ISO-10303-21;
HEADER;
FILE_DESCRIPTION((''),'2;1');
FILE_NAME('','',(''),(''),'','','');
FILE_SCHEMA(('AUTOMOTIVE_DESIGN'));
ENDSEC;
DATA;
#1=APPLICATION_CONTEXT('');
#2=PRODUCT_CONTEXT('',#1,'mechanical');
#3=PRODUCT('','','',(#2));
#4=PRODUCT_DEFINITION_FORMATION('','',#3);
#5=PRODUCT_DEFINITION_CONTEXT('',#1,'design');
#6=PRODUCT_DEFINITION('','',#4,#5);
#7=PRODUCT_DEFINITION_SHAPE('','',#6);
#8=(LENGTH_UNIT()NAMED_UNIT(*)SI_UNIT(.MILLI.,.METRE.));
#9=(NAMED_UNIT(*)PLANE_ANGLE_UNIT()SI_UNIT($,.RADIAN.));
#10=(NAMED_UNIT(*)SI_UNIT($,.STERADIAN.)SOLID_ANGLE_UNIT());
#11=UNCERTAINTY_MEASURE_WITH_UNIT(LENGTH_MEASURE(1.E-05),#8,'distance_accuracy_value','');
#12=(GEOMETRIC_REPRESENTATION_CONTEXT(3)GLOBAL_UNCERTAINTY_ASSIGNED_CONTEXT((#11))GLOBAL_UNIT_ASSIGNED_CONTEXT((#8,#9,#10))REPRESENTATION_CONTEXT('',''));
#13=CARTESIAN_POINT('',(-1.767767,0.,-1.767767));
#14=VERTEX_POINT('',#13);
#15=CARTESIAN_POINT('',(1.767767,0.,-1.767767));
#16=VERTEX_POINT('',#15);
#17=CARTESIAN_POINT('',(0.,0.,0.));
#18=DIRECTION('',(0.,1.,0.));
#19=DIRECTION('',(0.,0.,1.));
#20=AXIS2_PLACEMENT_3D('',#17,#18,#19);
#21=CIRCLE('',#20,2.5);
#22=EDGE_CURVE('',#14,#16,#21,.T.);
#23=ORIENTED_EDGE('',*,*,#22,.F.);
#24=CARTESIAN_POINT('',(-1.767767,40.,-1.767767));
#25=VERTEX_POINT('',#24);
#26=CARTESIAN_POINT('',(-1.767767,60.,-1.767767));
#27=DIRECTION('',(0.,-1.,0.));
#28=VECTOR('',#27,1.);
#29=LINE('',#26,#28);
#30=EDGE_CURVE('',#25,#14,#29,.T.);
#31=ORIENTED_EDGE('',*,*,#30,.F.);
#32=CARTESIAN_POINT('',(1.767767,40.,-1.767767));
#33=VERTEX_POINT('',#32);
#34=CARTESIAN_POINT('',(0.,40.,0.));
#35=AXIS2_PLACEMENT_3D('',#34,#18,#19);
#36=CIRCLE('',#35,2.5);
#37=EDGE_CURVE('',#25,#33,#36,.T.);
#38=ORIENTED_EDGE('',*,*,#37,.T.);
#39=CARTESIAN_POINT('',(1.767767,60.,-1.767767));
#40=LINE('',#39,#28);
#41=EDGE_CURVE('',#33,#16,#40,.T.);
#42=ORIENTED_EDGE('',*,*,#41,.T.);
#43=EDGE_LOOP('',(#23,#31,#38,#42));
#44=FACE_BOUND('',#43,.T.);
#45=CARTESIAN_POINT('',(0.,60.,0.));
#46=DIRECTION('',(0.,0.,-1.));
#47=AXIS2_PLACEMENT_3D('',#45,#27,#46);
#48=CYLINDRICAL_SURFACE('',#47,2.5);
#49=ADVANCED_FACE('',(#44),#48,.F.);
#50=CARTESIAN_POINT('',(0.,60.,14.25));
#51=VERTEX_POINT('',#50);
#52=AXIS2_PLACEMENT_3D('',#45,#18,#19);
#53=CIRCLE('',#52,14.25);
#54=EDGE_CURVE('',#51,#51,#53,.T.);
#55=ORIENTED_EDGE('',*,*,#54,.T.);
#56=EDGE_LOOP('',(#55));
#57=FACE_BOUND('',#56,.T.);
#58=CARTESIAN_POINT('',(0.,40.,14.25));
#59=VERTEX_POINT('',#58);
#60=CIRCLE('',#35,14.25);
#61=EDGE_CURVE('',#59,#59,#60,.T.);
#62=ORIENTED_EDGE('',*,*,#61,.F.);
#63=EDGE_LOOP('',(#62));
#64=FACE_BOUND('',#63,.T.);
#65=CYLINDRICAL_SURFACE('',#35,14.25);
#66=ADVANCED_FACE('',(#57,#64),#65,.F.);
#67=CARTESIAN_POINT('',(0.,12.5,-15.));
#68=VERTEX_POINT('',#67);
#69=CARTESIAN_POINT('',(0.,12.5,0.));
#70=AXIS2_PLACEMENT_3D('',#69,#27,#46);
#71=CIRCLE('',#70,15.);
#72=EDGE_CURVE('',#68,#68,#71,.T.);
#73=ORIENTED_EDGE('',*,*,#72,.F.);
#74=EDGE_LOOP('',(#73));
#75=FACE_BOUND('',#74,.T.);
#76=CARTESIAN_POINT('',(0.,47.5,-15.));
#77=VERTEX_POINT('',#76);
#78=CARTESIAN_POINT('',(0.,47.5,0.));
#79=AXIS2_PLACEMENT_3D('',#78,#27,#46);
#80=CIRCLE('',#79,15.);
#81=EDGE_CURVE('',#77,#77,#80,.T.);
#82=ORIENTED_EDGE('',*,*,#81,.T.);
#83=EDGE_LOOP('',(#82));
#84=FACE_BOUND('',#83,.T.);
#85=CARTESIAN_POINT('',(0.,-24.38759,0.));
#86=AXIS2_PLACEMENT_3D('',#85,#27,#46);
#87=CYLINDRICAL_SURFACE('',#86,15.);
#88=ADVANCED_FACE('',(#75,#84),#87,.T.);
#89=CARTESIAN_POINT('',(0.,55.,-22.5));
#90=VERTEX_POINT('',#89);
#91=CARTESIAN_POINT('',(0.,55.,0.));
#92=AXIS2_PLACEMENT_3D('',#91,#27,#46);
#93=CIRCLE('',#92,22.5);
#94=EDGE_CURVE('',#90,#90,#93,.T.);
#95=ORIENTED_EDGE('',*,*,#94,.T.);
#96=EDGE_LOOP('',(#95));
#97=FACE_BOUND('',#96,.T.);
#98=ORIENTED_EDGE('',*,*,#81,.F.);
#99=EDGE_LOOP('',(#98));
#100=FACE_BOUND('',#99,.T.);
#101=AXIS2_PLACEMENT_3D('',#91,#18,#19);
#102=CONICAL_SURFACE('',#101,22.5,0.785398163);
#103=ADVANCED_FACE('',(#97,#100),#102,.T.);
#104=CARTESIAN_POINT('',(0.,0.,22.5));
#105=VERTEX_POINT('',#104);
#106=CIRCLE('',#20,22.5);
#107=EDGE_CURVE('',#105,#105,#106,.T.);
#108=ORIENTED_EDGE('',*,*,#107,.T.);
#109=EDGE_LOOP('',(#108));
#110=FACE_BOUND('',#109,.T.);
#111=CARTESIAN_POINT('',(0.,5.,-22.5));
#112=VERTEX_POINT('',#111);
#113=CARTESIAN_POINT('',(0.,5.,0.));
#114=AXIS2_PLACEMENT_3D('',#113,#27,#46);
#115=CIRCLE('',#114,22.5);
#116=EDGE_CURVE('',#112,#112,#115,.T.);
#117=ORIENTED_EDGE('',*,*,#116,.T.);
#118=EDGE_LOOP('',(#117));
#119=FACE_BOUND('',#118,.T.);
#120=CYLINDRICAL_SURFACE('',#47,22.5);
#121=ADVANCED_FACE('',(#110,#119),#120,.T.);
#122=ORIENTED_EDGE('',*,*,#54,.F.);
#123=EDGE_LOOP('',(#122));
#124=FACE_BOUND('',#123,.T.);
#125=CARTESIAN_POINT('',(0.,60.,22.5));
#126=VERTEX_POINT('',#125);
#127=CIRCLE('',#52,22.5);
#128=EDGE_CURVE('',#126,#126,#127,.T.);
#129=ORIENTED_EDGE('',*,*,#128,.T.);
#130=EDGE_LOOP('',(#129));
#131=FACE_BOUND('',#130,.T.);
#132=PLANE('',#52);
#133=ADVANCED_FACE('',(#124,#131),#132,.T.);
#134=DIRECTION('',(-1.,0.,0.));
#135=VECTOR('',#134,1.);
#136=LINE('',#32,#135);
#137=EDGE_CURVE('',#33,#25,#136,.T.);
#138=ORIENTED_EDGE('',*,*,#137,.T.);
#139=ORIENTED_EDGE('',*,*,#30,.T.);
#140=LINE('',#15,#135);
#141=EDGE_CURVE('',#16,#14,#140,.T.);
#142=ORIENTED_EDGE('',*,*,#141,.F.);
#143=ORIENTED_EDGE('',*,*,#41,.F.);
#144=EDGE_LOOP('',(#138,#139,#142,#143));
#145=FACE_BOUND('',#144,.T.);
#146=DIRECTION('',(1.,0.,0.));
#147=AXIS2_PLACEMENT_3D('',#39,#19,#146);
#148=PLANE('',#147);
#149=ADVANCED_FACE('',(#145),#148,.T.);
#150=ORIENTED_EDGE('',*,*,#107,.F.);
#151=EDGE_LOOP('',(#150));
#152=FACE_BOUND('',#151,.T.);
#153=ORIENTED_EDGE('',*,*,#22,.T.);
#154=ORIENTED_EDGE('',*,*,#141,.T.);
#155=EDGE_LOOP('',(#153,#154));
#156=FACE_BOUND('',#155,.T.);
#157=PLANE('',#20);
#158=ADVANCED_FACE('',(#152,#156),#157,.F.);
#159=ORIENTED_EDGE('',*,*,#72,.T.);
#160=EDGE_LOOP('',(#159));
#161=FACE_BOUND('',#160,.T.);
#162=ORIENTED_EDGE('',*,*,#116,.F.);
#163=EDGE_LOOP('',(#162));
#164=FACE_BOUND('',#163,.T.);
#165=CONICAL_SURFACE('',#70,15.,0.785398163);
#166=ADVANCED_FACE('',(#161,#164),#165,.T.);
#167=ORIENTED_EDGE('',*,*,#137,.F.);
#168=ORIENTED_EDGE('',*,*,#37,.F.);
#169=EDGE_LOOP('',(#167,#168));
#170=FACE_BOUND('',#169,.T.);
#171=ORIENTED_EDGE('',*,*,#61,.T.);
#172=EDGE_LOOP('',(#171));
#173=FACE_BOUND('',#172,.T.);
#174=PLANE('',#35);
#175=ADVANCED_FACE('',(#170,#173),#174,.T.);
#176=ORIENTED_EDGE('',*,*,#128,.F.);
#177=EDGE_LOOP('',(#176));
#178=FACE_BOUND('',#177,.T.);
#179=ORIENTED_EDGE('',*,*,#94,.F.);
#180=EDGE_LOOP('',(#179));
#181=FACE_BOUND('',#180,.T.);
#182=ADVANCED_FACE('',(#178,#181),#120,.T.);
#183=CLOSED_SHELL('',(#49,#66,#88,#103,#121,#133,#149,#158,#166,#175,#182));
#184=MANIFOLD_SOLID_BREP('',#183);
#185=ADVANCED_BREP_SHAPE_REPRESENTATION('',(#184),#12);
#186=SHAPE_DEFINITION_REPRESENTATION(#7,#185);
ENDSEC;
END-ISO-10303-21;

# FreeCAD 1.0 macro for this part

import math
import FreeCAD as App
import Part
import Sketcher


def add_polygon(sketch, points):
    """Adds a closed chain of lines whose ends are joined by coincident constraints."""
    first, n = sketch.GeometryCount, len(points)
    for a, b in zip(points, points[1:] + points[:1]):
        sketch.addGeometry(Part.LineSegment(App.Vector(*a, 0), App.Vector(*b, 0)), False)
    for i in range(n):
        sketch.addConstraint(Sketcher.Constraint("Coincident", first + i, 2, first + (i + 1) % n, 1))

doc = App.newDocument("Part")
body = doc.addObject("PartDesign::Body", "Body")

sketch1 = body.newObject("Sketcher::SketchObject", "Sketch")
sketch1.AttachmentSupport = (doc.getObject("XZ_Plane"), [""])
sketch1.MapMode = "FlatFace"
sketch1.addGeometry([
    Part.Circle(App.Vector(0, 0, 0), App.Vector(0, 0, 1), 22.5),
    Part.LineSegment(App.Vector(-1.767767, -1.767767, 0), App.Vector(1.767767, -1.767767, 0)),
    Part.ArcOfCircle(Part.Circle(App.Vector(0, 0, 0), App.Vector(0, 0, 1), 2.5), math.radians(-45), math.radians(225)),
], False)
sketch1.addConstraint([
    Sketcher.Constraint("Coincident", 1, 1, 2, 2),
    Sketcher.Constraint("Coincident", 2, 1, 1, 2),
    Sketcher.Constraint("Horizontal", 1),
    Sketcher.Constraint("Coincident", 0, 3, -1, 1),
    Sketcher.Constraint("Coincident", 2, 3, -1, 1),
    Sketcher.Constraint("Diameter", 0, 45.0),
    Sketcher.Constraint("Radius", 2, 2.5),
    Sketcher.Constraint("DistanceX", 1, 1, 1, 2, 3.535534),
])
pad1 = body.newObject("PartDesign::Pad", "Pad")
pad1.Profile = sketch1
pad1.Length = 60
pad1.Reversed = True

sketch2 = body.newObject("Sketcher::SketchObject", "Sketch001")
sketch2.AttachmentSupport = (doc.getObject("XZ_Plane"), [""])
sketch2.MapMode = "FlatFace"
sketch2.AttachmentOffset = App.Placement(App.Vector(0, 0, -60), App.Rotation())
sketch2.addGeometry(Part.Circle(App.Vector(0, 0, 0), App.Vector(0, 0, 1), 14.25), False)
sketch2.addConstraint([
    Sketcher.Constraint("Coincident", 0, 3, -1, 1),
    Sketcher.Constraint("Diameter", 0, 28.5),
])
pocket1 = body.newObject("PartDesign::Pocket", "Pocket")
pocket1.Profile = sketch2
pocket1.Length = 20
pocket1.Reversed = True

sketch3 = body.newObject("Sketcher::SketchObject", "Sketch002")
sketch3.AttachmentSupport = (doc.getObject("XY_Plane"), [""])
sketch3.MapMode = "FlatFace"
add_polygon(sketch3, [(22.5, 5), (22.5, 55), (15, 47.5), (15, 12.5)])
sketch3.addConstraint([
    Sketcher.Constraint("Vertical", 0),
    Sketcher.Constraint("Vertical", 2),
    Sketcher.Constraint("Perpendicular", 1, 3),
    Sketcher.Constraint("Equal", 1, 3),
    Sketcher.Constraint("DistanceY", 0, 1, 0, 2, 50.0),
    Sketcher.Constraint("DistanceY", 2, 2, 2, 1, 35.0),
    Sketcher.Constraint("DistanceY", -1, 1, 0, 2, 55.0),
    Sketcher.Constraint("DistanceX", -1, 1, 1, 2, 15.0),
])
groove = body.newObject("PartDesign::Groove", "Groove")
groove.Profile = sketch3
groove.ReferenceAxis = (sketch3, ["V_Axis"])
groove.Angle = 360

doc.recompute()
